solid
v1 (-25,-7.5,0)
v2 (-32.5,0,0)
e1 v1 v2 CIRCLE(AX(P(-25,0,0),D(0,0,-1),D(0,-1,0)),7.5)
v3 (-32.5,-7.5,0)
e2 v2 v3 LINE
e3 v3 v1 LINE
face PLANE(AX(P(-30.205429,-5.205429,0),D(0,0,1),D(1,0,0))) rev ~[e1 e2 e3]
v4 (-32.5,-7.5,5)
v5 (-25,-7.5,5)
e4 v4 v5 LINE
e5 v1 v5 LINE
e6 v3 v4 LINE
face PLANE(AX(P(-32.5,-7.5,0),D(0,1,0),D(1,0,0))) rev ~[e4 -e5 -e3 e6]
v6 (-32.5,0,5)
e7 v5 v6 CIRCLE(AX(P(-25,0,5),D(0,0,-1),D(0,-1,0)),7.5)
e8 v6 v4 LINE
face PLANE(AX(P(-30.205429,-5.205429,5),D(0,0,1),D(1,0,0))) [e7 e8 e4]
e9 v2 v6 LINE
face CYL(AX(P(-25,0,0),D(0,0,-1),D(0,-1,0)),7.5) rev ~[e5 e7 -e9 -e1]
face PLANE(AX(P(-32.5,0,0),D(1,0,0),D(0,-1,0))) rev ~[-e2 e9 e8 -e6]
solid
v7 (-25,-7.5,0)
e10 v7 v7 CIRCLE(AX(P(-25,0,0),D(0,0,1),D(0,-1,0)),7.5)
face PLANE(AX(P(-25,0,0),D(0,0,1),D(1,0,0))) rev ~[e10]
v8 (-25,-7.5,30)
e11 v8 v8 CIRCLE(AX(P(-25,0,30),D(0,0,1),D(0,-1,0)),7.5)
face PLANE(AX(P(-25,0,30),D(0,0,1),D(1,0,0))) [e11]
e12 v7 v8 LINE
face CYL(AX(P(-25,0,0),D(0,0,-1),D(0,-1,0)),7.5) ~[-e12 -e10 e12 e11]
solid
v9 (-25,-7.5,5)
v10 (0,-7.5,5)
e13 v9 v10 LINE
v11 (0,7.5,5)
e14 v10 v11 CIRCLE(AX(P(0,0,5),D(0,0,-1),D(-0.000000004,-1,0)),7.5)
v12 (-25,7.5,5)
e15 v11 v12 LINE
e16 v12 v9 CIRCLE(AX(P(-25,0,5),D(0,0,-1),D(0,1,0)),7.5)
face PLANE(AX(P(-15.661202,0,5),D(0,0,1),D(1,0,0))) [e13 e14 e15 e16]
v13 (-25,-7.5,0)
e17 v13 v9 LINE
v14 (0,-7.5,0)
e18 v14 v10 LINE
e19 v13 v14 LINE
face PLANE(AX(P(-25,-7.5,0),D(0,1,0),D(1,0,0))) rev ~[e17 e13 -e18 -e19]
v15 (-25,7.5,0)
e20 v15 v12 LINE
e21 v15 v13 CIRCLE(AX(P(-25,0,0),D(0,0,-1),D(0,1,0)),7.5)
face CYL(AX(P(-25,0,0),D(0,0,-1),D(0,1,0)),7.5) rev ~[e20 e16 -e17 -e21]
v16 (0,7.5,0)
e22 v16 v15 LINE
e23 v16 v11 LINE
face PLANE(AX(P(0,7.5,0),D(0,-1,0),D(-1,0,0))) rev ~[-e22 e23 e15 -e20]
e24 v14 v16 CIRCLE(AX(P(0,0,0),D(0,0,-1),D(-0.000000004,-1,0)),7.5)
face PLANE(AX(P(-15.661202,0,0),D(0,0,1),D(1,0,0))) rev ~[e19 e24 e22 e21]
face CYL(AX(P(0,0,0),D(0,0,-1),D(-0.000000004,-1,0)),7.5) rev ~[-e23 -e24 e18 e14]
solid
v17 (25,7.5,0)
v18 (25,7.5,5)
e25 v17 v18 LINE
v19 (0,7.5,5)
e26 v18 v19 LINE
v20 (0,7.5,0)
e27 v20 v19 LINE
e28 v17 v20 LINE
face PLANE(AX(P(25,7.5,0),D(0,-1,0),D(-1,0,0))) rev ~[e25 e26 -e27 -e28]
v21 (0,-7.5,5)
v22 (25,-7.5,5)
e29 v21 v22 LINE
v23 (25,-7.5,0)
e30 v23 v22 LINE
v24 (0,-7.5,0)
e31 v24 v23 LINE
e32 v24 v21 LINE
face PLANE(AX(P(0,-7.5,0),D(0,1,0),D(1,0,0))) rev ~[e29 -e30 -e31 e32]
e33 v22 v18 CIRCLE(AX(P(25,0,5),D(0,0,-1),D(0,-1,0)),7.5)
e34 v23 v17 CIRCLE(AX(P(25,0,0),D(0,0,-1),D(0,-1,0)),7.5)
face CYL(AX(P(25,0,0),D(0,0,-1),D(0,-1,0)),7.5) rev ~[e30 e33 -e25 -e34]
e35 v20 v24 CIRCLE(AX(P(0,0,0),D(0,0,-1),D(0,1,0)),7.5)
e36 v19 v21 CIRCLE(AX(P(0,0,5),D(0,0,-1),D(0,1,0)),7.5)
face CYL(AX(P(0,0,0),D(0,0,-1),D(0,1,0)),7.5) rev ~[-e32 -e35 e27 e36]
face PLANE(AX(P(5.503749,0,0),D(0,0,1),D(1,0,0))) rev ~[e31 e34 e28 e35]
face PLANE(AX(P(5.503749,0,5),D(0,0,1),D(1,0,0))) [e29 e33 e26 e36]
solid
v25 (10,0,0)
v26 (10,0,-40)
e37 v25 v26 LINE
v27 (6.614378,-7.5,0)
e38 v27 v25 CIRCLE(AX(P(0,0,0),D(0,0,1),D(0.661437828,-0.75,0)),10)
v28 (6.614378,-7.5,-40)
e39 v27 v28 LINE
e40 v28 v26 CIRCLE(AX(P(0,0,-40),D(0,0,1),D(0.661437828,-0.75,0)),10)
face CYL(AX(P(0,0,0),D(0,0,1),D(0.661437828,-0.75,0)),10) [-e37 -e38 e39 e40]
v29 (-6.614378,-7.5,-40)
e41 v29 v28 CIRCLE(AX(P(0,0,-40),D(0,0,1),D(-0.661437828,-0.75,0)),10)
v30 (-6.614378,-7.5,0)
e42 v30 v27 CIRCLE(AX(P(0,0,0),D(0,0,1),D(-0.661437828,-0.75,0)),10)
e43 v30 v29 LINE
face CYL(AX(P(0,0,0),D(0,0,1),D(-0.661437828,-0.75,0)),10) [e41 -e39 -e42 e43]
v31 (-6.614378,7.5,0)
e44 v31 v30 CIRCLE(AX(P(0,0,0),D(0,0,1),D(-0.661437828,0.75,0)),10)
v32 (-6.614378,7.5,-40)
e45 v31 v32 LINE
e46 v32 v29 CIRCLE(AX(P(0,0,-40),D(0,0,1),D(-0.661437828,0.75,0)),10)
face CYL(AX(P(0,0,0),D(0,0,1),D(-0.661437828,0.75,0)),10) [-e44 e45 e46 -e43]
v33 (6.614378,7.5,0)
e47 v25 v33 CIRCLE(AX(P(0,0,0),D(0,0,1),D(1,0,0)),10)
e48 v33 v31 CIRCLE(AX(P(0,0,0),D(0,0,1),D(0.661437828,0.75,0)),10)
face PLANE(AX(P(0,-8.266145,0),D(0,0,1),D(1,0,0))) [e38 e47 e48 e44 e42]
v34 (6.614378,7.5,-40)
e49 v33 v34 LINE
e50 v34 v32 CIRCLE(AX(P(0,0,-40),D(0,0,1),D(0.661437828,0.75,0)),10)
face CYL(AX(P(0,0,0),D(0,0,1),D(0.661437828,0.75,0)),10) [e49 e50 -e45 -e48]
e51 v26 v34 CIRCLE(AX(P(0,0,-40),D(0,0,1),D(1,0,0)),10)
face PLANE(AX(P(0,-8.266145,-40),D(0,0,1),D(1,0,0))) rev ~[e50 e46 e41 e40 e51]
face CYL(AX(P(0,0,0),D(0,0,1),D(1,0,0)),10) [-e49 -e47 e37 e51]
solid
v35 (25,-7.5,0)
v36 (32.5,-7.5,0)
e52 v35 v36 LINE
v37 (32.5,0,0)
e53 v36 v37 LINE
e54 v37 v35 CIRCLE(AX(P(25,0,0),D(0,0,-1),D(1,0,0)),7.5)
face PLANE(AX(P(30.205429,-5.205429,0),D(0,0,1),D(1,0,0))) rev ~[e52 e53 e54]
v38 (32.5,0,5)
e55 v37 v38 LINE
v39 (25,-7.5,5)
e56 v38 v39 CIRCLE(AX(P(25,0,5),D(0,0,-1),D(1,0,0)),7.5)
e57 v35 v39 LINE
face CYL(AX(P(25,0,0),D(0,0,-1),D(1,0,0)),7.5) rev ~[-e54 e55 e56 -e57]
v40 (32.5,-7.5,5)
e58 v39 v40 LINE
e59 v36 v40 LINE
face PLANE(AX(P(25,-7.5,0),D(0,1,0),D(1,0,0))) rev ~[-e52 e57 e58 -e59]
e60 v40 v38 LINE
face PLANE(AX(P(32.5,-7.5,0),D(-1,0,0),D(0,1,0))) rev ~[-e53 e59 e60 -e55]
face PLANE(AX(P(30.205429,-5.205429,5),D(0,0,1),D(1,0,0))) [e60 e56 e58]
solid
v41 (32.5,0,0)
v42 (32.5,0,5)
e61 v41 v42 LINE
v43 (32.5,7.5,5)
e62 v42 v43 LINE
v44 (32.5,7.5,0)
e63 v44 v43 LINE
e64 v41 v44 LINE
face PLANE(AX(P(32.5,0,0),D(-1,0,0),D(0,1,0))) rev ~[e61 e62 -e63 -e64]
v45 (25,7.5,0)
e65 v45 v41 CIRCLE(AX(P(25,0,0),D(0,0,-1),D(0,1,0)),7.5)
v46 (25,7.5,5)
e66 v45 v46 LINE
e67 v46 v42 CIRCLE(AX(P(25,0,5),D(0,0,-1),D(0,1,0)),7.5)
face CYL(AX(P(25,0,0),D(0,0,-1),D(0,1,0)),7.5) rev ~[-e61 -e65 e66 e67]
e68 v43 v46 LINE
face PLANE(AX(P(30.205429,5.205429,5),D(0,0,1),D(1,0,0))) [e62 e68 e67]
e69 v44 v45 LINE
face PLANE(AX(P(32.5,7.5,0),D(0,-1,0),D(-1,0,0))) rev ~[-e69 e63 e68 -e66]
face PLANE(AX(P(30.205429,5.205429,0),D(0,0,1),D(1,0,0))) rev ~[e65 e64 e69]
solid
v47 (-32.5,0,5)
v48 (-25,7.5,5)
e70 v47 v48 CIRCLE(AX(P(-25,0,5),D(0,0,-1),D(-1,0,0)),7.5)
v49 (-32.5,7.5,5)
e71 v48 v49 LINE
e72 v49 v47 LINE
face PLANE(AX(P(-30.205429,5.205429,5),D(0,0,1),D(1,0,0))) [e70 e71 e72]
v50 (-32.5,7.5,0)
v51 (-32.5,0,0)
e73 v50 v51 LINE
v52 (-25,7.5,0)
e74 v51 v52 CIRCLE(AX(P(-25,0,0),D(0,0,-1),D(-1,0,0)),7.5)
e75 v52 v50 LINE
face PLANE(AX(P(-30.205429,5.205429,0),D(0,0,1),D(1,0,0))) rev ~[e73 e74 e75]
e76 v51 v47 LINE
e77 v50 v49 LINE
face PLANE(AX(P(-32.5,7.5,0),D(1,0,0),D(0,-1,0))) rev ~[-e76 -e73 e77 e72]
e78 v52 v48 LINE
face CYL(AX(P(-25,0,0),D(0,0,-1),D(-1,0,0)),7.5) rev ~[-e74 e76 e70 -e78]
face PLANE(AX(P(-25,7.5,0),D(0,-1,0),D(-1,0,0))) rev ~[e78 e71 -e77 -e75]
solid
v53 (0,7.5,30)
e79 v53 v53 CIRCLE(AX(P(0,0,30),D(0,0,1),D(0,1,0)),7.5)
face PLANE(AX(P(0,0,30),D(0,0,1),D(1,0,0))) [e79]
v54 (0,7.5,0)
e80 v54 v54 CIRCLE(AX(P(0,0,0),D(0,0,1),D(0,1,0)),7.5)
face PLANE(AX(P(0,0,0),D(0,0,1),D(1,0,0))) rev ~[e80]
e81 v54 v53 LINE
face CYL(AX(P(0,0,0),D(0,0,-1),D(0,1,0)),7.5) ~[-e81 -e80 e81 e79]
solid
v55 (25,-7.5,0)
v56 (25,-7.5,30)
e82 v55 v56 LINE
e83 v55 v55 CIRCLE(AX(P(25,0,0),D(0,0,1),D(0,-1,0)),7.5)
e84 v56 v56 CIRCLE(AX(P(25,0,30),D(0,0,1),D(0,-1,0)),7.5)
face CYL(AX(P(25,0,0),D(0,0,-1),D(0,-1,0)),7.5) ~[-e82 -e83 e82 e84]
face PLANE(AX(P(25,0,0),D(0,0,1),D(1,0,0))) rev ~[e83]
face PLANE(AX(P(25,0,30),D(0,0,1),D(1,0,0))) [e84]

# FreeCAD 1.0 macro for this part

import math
import FreeCAD as App
import Part
import Sketcher
from FreeCAD import Vector

doc = App.newDocument("Part")
body = doc.addObject("PartDesign::Body", "Body")

# Sketch on XY plane
sketch1 = body.newObject("Sketcher::SketchObject", "Sketch")
sketch1.AttachmentSupport = (doc.getObject("XY_Plane"), [""])
sketch1.MapMode = "FlatFace"
sketch1.addGeometry(Part.Circle(Vector(-25, 0, 0), Vector(0, 0, 1), 8), False)
sketch1.addConstraint([
    Sketcher.Constraint("PointOnObject", 0, 3, -1),
    Sketcher.Constraint("Diameter", 0, 15.0),
    Sketcher.Constraint("DistanceX", 0, 3, -1, 1, 25.0),
])
pad1 = body.newObject("PartDesign::Pad", "Pad")
pad1.Profile = sketch1
pad1.Length = 30
body2 = doc.addObject("PartDesign::Body", "Body001")

# Sketch on XY plane
sketch2 = body2.newObject("Sketcher::SketchObject", "Sketch001")
sketch2.AttachmentSupport = (doc.getObject("XY_Plane001"), [""])
sketch2.MapMode = "FlatFace"
sketch2.addGeometry(Part.Circle(Vector(25, 0, 0), Vector(0, 0, 1), 8), False)
sketch2.addConstraint([
    Sketcher.Constraint("PointOnObject", 0, 3, -1),
    Sketcher.Constraint("Diameter", 0, 15.0),
    Sketcher.Constraint("DistanceX", -1, 1, 0, 3, 25.0),
])
pad2 = body2.newObject("PartDesign::Pad", "Pad001")
pad2.Profile = sketch2
pad2.Length = 30
body3 = doc.addObject("PartDesign::Body", "Body002")

# Sketch on XY plane
sketch3 = body3.newObject("Sketcher::SketchObject", "Sketch002")
sketch3.AttachmentSupport = (doc.getObject("XY_Plane002"), [""])
sketch3.MapMode = "FlatFace"
sketch3.addGeometry(Part.Circle(Vector(0, 0, 0), Vector(0, 0, 1), 8), False)
sketch3.addConstraint([
    Sketcher.Constraint("Coincident", 0, 3, -1, 1),
    Sketcher.Constraint("Diameter", 0, 15.0),
])
pad3 = body3.newObject("PartDesign::Pad", "Pad002")
pad3.Profile = sketch3
pad3.Length = 30
body4 = doc.addObject("PartDesign::Body", "Body003")

# Sketch on XY plane
sketch4 = body4.newObject("Sketcher::SketchObject", "Sketch003")
sketch4.AttachmentSupport = (doc.getObject("XY_Plane003"), [""])
sketch4.MapMode = "FlatFace"
sketch4.addGeometry([
    Part.ArcOfCircle(Part.Circle(Vector(-25, 0, 0), Vector(0, 0, 1), 8), math.radians(-90), math.radians(90)),
    Part.LineSegment(Vector(-25, -8, 0), Vector(0, -8, 0)),
    Part.ArcOfCircle(Part.Circle(Vector(0, 0, 0), Vector(0, 0, 1), 8), math.radians(90), math.radians(270)),
    Part.LineSegment(Vector(0, 8, 0), Vector(-25, 8, 0)),
], False)
sketch4.addConstraint([
    Sketcher.Constraint("Tangent", 0, 1, 1, 1),
    Sketcher.Constraint("Tangent", 1, 2, 2, 2),
    Sketcher.Constraint("Tangent", 2, 1, 3, 1),
    Sketcher.Constraint("Tangent", 3, 2, 0, 2),
    Sketcher.Constraint("Horizontal", 1),
    Sketcher.Constraint("Horizontal", 3),
    Sketcher.Constraint("Coincident", 2, 3, -1, 1),
    Sketcher.Constraint("Radius", 0, 7.5),
    Sketcher.Constraint("DistanceX", 1, 1, 1, 2, 25.0),
])
pad4 = body4.newObject("PartDesign::Pad", "Pad003")
pad4.Profile = sketch4
pad4.Length = 5
body5 = doc.addObject("PartDesign::Body", "Body004")

# Sketch on XY plane
sketch5 = body5.newObject("Sketcher::SketchObject", "Sketch004")
sketch5.AttachmentSupport = (doc.getObject("XY_Plane004"), [""])
sketch5.MapMode = "FlatFace"
sketch5.addGeometry([
    Part.LineSegment(Vector(-32, -8, 0), Vector(-25, -8, 0)),
    Part.ArcOfCircle(Part.Circle(Vector(-25, 0, 0), Vector(0, 0, 1), 8), math.radians(180), math.radians(270)),
    Part.LineSegment(Vector(-32, 0, 0), Vector(-32, -8, 0)),
], False)
sketch5.addConstraint([
    Sketcher.Constraint("Tangent", 0, 2, 1, 2),
    Sketcher.Constraint("Tangent", 1, 1, 2, 1),
    Sketcher.Constraint("Coincident", 2, 2, 0, 1),
    Sketcher.Constraint("Horizontal", 0),
    Sketcher.Constraint("Vertical", 2),
    Sketcher.Constraint("PointOnObject", 1, 3, -1),
    Sketcher.Constraint("Radius", 1, 7.5),
    Sketcher.Constraint("DistanceX", 1, 3, -1, 1, 25.0),
])
pad5 = body5.newObject("PartDesign::Pad", "Pad004")
pad5.Profile = sketch5
pad5.Length = 5
body6 = doc.addObject("PartDesign::Body", "Body005")

# Sketch on XY plane
sketch6 = body6.newObject("Sketcher::SketchObject", "Sketch005")
sketch6.AttachmentSupport = (doc.getObject("XY_Plane005"), [""])
sketch6.MapMode = "FlatFace"
sketch6.addGeometry([
    Part.ArcOfCircle(Part.Circle(Vector(0, 0, 0), Vector(0, 0, 1), 8), math.radians(-90), math.radians(90)),
    Part.LineSegment(Vector(0, -8, 0), Vector(25, -8, 0)),
    Part.ArcOfCircle(Part.Circle(Vector(25, 0, 0), Vector(0, 0, 1), 8), math.radians(90), math.radians(270)),
    Part.LineSegment(Vector(25, 8, 0), Vector(0, 8, 0)),
], False)
sketch6.addConstraint([
    Sketcher.Constraint("Tangent", 0, 1, 1, 1),
    Sketcher.Constraint("Tangent", 1, 2, 2, 2),
    Sketcher.Constraint("Tangent", 2, 1, 3, 1),
    Sketcher.Constraint("Tangent", 3, 2, 0, 2),
    Sketcher.Constraint("Horizontal", 1),
    Sketcher.Constraint("Horizontal", 3),
    Sketcher.Constraint("Coincident", 0, 3, -1, 1),
    Sketcher.Constraint("Radius", 0, 7.5),
    Sketcher.Constraint("DistanceX", 1, 1, 1, 2, 25.0),
])
pad6 = body6.newObject("PartDesign::Pad", "Pad005")
pad6.Profile = sketch6
pad6.Length = 5
body7 = doc.addObject("PartDesign::Body", "Body006")

# Sketch on XY plane
sketch7 = body7.newObject("Sketcher::SketchObject", "Sketch006")
sketch7.AttachmentSupport = (doc.getObject("XY_Plane006"), [""])
sketch7.MapMode = "FlatFace"
sketch7.addGeometry([
    Part.ArcOfCircle(Part.Circle(Vector(25, 0, 0), Vector(0, 0, 1), 8), math.radians(-90), math.radians(0)),
    Part.LineSegment(Vector(25, -8, 0), Vector(32, -8, 0)),
    Part.LineSegment(Vector(32, -8, 0), Vector(32, 0, 0)),
], False)
sketch7.addConstraint([
    Sketcher.Constraint("Tangent", 0, 1, 1, 1),
    Sketcher.Constraint("Coincident", 1, 2, 2, 1),
    Sketcher.Constraint("Tangent", 2, 2, 0, 2),
    Sketcher.Constraint("Horizontal", 1),
    Sketcher.Constraint("Vertical", 2),
    Sketcher.Constraint("PointOnObject", 0, 3, -1),
    Sketcher.Constraint("Radius", 0, 7.5),
    Sketcher.Constraint("DistanceX", -1, 1, 0, 3, 25.0),
])
pad7 = body7.newObject("PartDesign::Pad", "Pad006")
pad7.Profile = sketch7
pad7.Length = 5
body8 = doc.addObject("PartDesign::Body", "Body007")

# Sketch on XY plane
sketch8 = body8.newObject("Sketcher::SketchObject", "Sketch007")
sketch8.AttachmentSupport = (doc.getObject("XY_Plane007"), [""])
sketch8.MapMode = "FlatFace"
sketch8.addGeometry([
    Part.LineSegment(Vector(32, 8, 0), Vector(25, 8, 0)),
    Part.ArcOfCircle(Part.Circle(Vector(25, 0, 0), Vector(0, 0, 1), 8), math.radians(0), math.radians(90)),
    Part.LineSegment(Vector(32, 0, 0), Vector(32, 8, 0)),
], False)
sketch8.addConstraint([
    Sketcher.Constraint("Tangent", 0, 2, 1, 2),
    Sketcher.Constraint("Tangent", 1, 1, 2, 1),
    Sketcher.Constraint("Coincident", 2, 2, 0, 1),
    Sketcher.Constraint("Horizontal", 0),
    Sketcher.Constraint("Vertical", 2),
    Sketcher.Constraint("PointOnObject", 1, 3, -1),
    Sketcher.Constraint("Radius", 1, 7.5),
    Sketcher.Constraint("DistanceX", -1, 1, 1, 3, 25.0),
])
pad8 = body8.newObject("PartDesign::Pad", "Pad007")
pad8.Profile = sketch8
pad8.Length = 5
body9 = doc.addObject("PartDesign::Body", "Body008")

# Sketch on XY plane
sketch9 = body9.newObject("Sketcher::SketchObject", "Sketch008")
sketch9.AttachmentSupport = (doc.getObject("XY_Plane008"), [""])
sketch9.MapMode = "FlatFace"
sketch9.addGeometry([
    Part.ArcOfCircle(Part.Circle(Vector(-25, 0, 0), Vector(0, 0, 1), 8), math.radians(90), math.radians(180)),
    Part.LineSegment(Vector(-25, 8, 0), Vector(-32, 8, 0)),
    Part.LineSegment(Vector(-32, 8, 0), Vector(-32, 0, 0)),
], False)
sketch9.addConstraint([
    Sketcher.Constraint("Tangent", 0, 1, 1, 1),
    Sketcher.Constraint("Coincident", 1, 2, 2, 1),
    Sketcher.Constraint("Tangent", 2, 2, 0, 2),
    Sketcher.Constraint("Horizontal", 1),
    Sketcher.Constraint("Vertical", 2),
    Sketcher.Constraint("PointOnObject", 0, 3, -1),
    Sketcher.Constraint("Radius", 0, 7.5),
    Sketcher.Constraint("DistanceX", 0, 3, -1, 1, 25.0),
])
pad9 = body9.newObject("PartDesign::Pad", "Pad008")
pad9.Profile = sketch9
pad9.Length = 5
body10 = doc.addObject("PartDesign::Body", "Body009")

# Sketch on XY plane
sketch10 = body10.newObject("Sketcher::SketchObject", "Sketch009")
sketch10.AttachmentSupport = (doc.getObject("XY_Plane009"), [""])
sketch10.MapMode = "FlatFace"
sketch10.addGeometry([
    Part.ArcOfCircle(Part.Circle(Vector(0, 0, 0), Vector(0, 0, 1), 10), math.radians(49), math.radians(131)),  # 0
    Part.ArcOfCircle(Part.Circle(Vector(0, 0, 0), Vector(0, 0, 1), 10), math.radians(131), math.radians(229)),  # 1
    Part.ArcOfCircle(Part.Circle(Vector(0, 0, 0), Vector(0, 0, 1), 10), math.radians(-131), math.radians(-49)),  # 2
    Part.ArcOfCircle(Part.Circle(Vector(0, 0, 0), Vector(0, 0, 1), 10), math.radians(-49), math.radians(0)),  # 3
    Part.ArcOfCircle(Part.Circle(Vector(0, 0, 0), Vector(0, 0, 1), 10), math.radians(0), math.radians(49)),  # 4
], False)
sketch10.addConstraint([
    Sketcher.Constraint("Tangent", 0, 2, 1, 1),
    Sketcher.Constraint("Tangent", 1, 2, 2, 1),
    Sketcher.Constraint("Tangent", 2, 2, 3, 1),
    Sketcher.Constraint("Tangent", 3, 2, 4, 1),
    Sketcher.Constraint("Tangent", 4, 2, 0, 1),
    Sketcher.Constraint("Coincident", 0, 3, -1, 1),
    Sketcher.Constraint("Coincident", 2, 3, -1, 1),
    Sketcher.Constraint("PointOnObject", 3, 2, -1),
    Sketcher.Constraint("Horizontal", 1, 2, 2, 2),
    Sketcher.Constraint("Horizontal", 0, 2, 4, 2),
    Sketcher.Constraint("Vertical", 0, 2, 1, 2),
    Sketcher.Constraint("Radius", 0, 10.0),
    Sketcher.Constraint("DistanceY", -1, 1, 0, 2, 7.5),
])
pad10 = body10.newObject("PartDesign::Pad", "Pad009")
pad10.Profile = sketch10
pad10.Length = 40
pad10.Reversed = True

doc.recompute()
